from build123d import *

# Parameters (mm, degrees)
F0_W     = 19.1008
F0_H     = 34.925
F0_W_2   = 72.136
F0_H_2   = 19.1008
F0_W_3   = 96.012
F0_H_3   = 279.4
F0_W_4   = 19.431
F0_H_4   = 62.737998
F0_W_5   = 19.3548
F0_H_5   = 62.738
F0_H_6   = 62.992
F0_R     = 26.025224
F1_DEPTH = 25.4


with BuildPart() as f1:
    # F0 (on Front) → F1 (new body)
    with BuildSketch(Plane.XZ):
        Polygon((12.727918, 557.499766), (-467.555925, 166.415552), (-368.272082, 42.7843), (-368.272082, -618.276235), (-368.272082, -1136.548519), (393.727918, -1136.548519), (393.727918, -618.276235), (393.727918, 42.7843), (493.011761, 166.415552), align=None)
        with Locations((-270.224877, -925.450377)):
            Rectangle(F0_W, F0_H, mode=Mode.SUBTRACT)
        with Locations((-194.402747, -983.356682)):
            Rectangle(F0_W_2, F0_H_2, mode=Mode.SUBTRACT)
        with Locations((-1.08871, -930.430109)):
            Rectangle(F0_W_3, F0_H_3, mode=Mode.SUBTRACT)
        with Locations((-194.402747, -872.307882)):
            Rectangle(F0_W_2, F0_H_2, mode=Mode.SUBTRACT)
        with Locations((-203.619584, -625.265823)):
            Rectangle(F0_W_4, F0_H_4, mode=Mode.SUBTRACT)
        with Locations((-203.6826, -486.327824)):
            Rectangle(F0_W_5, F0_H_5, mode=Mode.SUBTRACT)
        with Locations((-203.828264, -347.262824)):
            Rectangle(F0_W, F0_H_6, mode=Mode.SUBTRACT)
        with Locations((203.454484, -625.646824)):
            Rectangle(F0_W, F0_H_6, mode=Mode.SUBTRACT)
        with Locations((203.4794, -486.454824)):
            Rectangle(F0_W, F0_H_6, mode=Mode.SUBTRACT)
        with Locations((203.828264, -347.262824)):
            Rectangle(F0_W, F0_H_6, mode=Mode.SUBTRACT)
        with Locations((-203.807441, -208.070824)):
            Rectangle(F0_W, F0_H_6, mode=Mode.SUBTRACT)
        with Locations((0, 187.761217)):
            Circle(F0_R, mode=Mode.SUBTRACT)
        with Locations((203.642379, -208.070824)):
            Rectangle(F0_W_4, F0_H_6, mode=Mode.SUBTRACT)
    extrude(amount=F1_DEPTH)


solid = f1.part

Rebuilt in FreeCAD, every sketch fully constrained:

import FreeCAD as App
import Part
import Sketcher

V = App.Vector
Q = App.Units.Quantity

doc = App.newDocument("Part")
params = doc.addObject("Spreadsheet::Sheet", "Params")
for row, (alias, value) in enumerate([
    ("sketch1_width", "30 in"),
    ("sketch1_height", "11 in"),
    ("sketch1_width2", "2.84 in"),
    ("sketch1_width3", "3.78 in"),
    ("sketch1_height2", "2.4699999 in"),
    ("pad1_length", "1 in"),
], start=1):
    params.set(f"A{row}", alias)
    params.set(f"B{row}", "=" + value)
    params.setAlias(f"B{row}", alias)

body = doc.addObject("PartDesign::Body", "Body")

# Sketch on XZ plane
sketch1 = body.newObject("Sketcher::SketchObject", "Sketch")
sketch1.AttachmentSupport = (doc.getObject("XZ_Plane"), [""])
sketch1.MapMode = "FlatFace"
sketch1.addGeometry(Part.LineSegment(V(13, 557, 0), V(-468, 166, 0)), False)
sketch1.addGeometry(Part.LineSegment(V(-468, 166, 0), V(-368, 43, 0)), False)
sketch1.addGeometry(Part.LineSegment(V(-368, 43, 0), V(-368, -1137, 0)), False)
sketch1.addGeometry(Part.LineSegment(V(-368, -1137, 0), V(394, -1137, 0)), False)
sketch1.addGeometry(Part.LineSegment(V(394, -1137, 0), V(394, 43, 0)), False)
sketch1.addGeometry(Part.LineSegment(V(394, 43, 0), V(493, 166, 0)), False)
sketch1.addGeometry(Part.LineSegment(V(493, 166, 0), V(13, 557, 0)), False)
sketch1.addGeometry(Part.LineSegment(V(-261, -943, 0), V(-280, -943, 0)), False)
sketch1.addGeometry(Part.LineSegment(V(-280, -943, 0), V(-280, -908, 0)), False)
sketch1.addGeometry(Part.LineSegment(V(-280, -908, 0), V(-261, -908, 0)), False)
sketch1.addGeometry(Part.LineSegment(V(-261, -908, 0), V(-261, -943, 0)), False)
sketch1.addGeometry(Part.LineSegment(V(-158, -993, 0), V(-230, -993, 0)), False)
sketch1.addGeometry(Part.LineSegment(V(-230, -993, 0), V(-230, -974, 0)), False)
sketch1.addGeometry(Part.LineSegment(V(-230, -974, 0), V(-158, -974, 0)), False)
sketch1.addGeometry(Part.LineSegment(V(-158, -974, 0), V(-158, -993, 0)), False)
sketch1.addGeometry(Part.LineSegment(V(-158, -882, 0), V(-230, -882, 0)), False)
sketch1.addGeometry(Part.LineSegment(V(-230, -882, 0), V(-230, -863, 0)), False)
sketch1.addGeometry(Part.LineSegment(V(-230, -863, 0), V(-158, -863, 0)), False)
sketch1.addGeometry(Part.LineSegment(V(-158, -863, 0), V(-158, -882, 0)), False)
sketch1.addGeometry(Part.LineSegment(V(-194, -657, 0), V(-213, -657, 0)), False)
sketch1.addGeometry(Part.LineSegment(V(-213, -657, 0), V(-213, -594, 0)), False)
sketch1.addGeometry(Part.LineSegment(V(-213, -594, 0), V(-194, -594, 0)), False)
sketch1.addGeometry(Part.LineSegment(V(-194, -594, 0), V(-194, -657, 0)), False)
sketch1.addGeometry(Part.LineSegment(V(-194, -518, 0), V(-213, -518, 0)), False)
sketch1.addGeometry(Part.LineSegment(V(-213, -518, 0), V(-213, -455, 0)), False)
sketch1.addGeometry(Part.LineSegment(V(-213, -455, 0), V(-194, -455, 0)), False)
sketch1.addGeometry(Part.LineSegment(V(-194, -455, 0), V(-194, -518, 0)), False)
sketch1.addGeometry(Part.LineSegment(V(47, -1070, 0), V(-49, -1070, 0)), False)
sketch1.addGeometry(Part.LineSegment(V(-49, -1070, 0), V(-49, -791, 0)), False)
sketch1.addGeometry(Part.LineSegment(V(-49, -791, 0), V(47, -791, 0)), False)
sketch1.addGeometry(Part.LineSegment(V(47, -791, 0), V(47, -1070, 0)), False)
sketch1.addGeometry(Part.LineSegment(V(213, -657, 0), V(194, -657, 0)), False)
sketch1.addGeometry(Part.LineSegment(V(194, -657, 0), V(194, -594, 0)), False)
sketch1.addGeometry(Part.LineSegment(V(194, -594, 0), V(213, -594, 0)), False)
sketch1.addGeometry(Part.LineSegment(V(213, -594, 0), V(213, -657, 0)), False)
sketch1.addGeometry(Part.LineSegment(V(213, -518, 0), V(194, -518, 0)), False)
sketch1.addGeometry(Part.LineSegment(V(194, -518, 0), V(194, -455, 0)), False)
sketch1.addGeometry(Part.LineSegment(V(194, -455, 0), V(213, -455, 0)), False)
sketch1.addGeometry(Part.LineSegment(V(213, -455, 0), V(213, -518, 0)), False)
sketch1.addGeometry(Part.LineSegment(V(-194, -379, 0), V(-213, -379, 0)), False)
sketch1.addGeometry(Part.LineSegment(V(-213, -379, 0), V(-213, -316, 0)), False)
sketch1.addGeometry(Part.LineSegment(V(-213, -316, 0), V(-194, -316, 0)), False)
sketch1.addGeometry(Part.LineSegment(V(-194, -316, 0), V(-194, -379, 0)), False)
sketch1.addGeometry(Part.LineSegment(V(-194, -240, 0), V(-213, -240, 0)), False)
sketch1.addGeometry(Part.LineSegment(V(-213, -240, 0), V(-213, -177, 0)), False)
sketch1.addGeometry(Part.LineSegment(V(-213, -177, 0), V(-194, -177, 0)), False)
sketch1.addGeometry(Part.LineSegment(V(-194, -177, 0), V(-194, -240, 0)), False)
sketch1.addGeometry(Part.LineSegment(V(213, -379, 0), V(194, -379, 0)), False)
sketch1.addGeometry(Part.LineSegment(V(194, -379, 0), V(194, -316, 0)), False)
sketch1.addGeometry(Part.LineSegment(V(194, -316, 0), V(213, -316, 0)), False)
sketch1.addGeometry(Part.LineSegment(V(213, -316, 0), V(213, -379, 0)), False)
sketch1.addGeometry(Part.LineSegment(V(213, -240, 0), V(194, -240, 0)), False)
sketch1.addGeometry(Part.LineSegment(V(194, -240, 0), V(194, -177, 0)), False)
sketch1.addGeometry(Part.LineSegment(V(194, -177, 0), V(213, -177, 0)), False)
sketch1.addGeometry(Part.LineSegment(V(213, -177, 0), V(213, -240, 0)), False)
sketch1.addGeometry(Part.Circle(V(0, 188, 0), V(0, 0, 1), 26), False)
sketch1.addConstraint(Sketcher.Constraint("Coincident", 0, 2, 1, 1))
sketch1.addConstraint(Sketcher.Constraint("Coincident", 1, 2, 2, 1))
sketch1.addConstraint(Sketcher.Constraint("Coincident", 2, 2, 3, 1))
sketch1.addConstraint(Sketcher.Constraint("Coincident", 3, 2, 4, 1))
sketch1.addConstraint(Sketcher.Constraint("Coincident", 4, 2, 5, 1))
sketch1.addConstraint(Sketcher.Constraint("Coincident", 5, 2, 6, 1))
sketch1.addConstraint(Sketcher.Constraint("Coincident", 6, 2, 0, 1))
sketch1.addConstraint(Sketcher.Constraint("Coincident", 7, 2, 8, 1))
sketch1.addConstraint(Sketcher.Constraint("Coincident", 8, 2, 9, 1))
sketch1.addConstraint(Sketcher.Constraint("Coincident", 9, 2, 10, 1))
sketch1.addConstraint(Sketcher.Constraint("Coincident", 10, 2, 7, 1))
sketch1.addConstraint(Sketcher.Constraint("Coincident", 11, 2, 12, 1))
sketch1.addConstraint(Sketcher.Constraint("Coincident", 12, 2, 13, 1))
sketch1.addConstraint(Sketcher.Constraint("Coincident", 13, 2, 14, 1))
sketch1.addConstraint(Sketcher.Constraint("Coincident", 14, 2, 11, 1))
sketch1.addConstraint(Sketcher.Constraint("Coincident", 15, 2, 16, 1))
sketch1.addConstraint(Sketcher.Constraint("Coincident", 16, 2, 17, 1))
sketch1.addConstraint(Sketcher.Constraint("Coincident", 17, 2, 18, 1))
sketch1.addConstraint(Sketcher.Constraint("Coincident", 18, 2, 15, 1))
sketch1.addConstraint(Sketcher.Constraint("Coincident", 19, 2, 20, 1))
sketch1.addConstraint(Sketcher.Constraint("Coincident", 20, 2, 21, 1))
sketch1.addConstraint(Sketcher.Constraint("Coincident", 21, 2, 22, 1))
sketch1.addConstraint(Sketcher.Constraint("Coincident", 22, 2, 19, 1))
sketch1.addConstraint(Sketcher.Constraint("Coincident", 23, 2, 24, 1))
sketch1.addConstraint(Sketcher.Constraint("Coincident", 24, 2, 25, 1))
sketch1.addConstraint(Sketcher.Constraint("Coincident", 25, 2, 26, 1))
sketch1.addConstraint(Sketcher.Constraint("Coincident", 26, 2, 23, 1))
sketch1.addConstraint(Sketcher.Constraint("Coincident", 27, 2, 28, 1))
sketch1.addConstraint(Sketcher.Constraint("Coincident", 28, 2, 29, 1))
sketch1.addConstraint(Sketcher.Constraint("Coincident", 29, 2, 30, 1))
sketch1.addConstraint(Sketcher.Constraint("Coincident", 30, 2, 27, 1))
sketch1.addConstraint(Sketcher.Constraint("Coincident", 31, 2, 32, 1))
sketch1.addConstraint(Sketcher.Constraint("Coincident", 32, 2, 33, 1))
sketch1.addConstraint(Sketcher.Constraint("Coincident", 33, 2, 34, 1))
sketch1.addConstraint(Sketcher.Constraint("Coincident", 34, 2, 31, 1))
sketch1.addConstraint(Sketcher.Constraint("Coincident", 35, 2, 36, 1))
sketch1.addConstraint(Sketcher.Constraint("Coincident", 36, 2, 37, 1))
sketch1.addConstraint(Sketcher.Constraint("Coincident", 37, 2, 38, 1))
sketch1.addConstraint(Sketcher.Constraint("Coincident", 38, 2, 35, 1))
sketch1.addConstraint(Sketcher.Constraint("Coincident", 39, 2, 40, 1))
sketch1.addConstraint(Sketcher.Constraint("Coincident", 40, 2, 41, 1))
sketch1.addConstraint(Sketcher.Constraint("Coincident", 41, 2, 42, 1))
sketch1.addConstraint(Sketcher.Constraint("Coincident", 42, 2, 39, 1))
sketch1.addConstraint(Sketcher.Constraint("Coincident", 43, 2, 44, 1))
sketch1.addConstraint(Sketcher.Constraint("Coincident", 44, 2, 45, 1))
sketch1.addConstraint(Sketcher.Constraint("Coincident", 45, 2, 46, 1))
sketch1.addConstraint(Sketcher.Constraint("Coincident", 46, 2, 43, 1))
sketch1.addConstraint(Sketcher.Constraint("Coincident", 47, 2, 48, 1))
sketch1.addConstraint(Sketcher.Constraint("Coincident", 48, 2, 49, 1))
sketch1.addConstraint(Sketcher.Constraint("Coincident", 49, 2, 50, 1))
sketch1.addConstraint(Sketcher.Constraint("Coincident", 50, 2, 47, 1))
sketch1.addConstraint(Sketcher.Constraint("Coincident", 51, 2, 52, 1))
sketch1.addConstraint(Sketcher.Constraint("Coincident", 52, 2, 53, 1))
sketch1.addConstraint(Sketcher.Constraint("Coincident", 53, 2, 54, 1))
sketch1.addConstraint(Sketcher.Constraint("Coincident", 54, 2, 51, 1))
sketch1.addConstraint(Sketcher.Constraint("Vertical", 2))
sketch1.addConstraint(Sketcher.Constraint("Horizontal", 3))
sketch1.addConstraint(Sketcher.Constraint("Vertical", 4))
sketch1.addConstraint(Sketcher.Constraint("Horizontal", 7))
sketch1.addConstraint(Sketcher.Constraint("Vertical", 8))
sketch1.addConstraint(Sketcher.Constraint("Horizontal", 9))
sketch1.addConstraint(Sketcher.Constraint("Vertical", 10))
sketch1.addConstraint(Sketcher.Constraint("Horizontal", 11))
sketch1.addConstraint(Sketcher.Constraint("Vertical", 12))
sketch1.addConstraint(Sketcher.Constraint("Horizontal", 13))
sketch1.addConstraint(Sketcher.Constraint("Vertical", 14))
sketch1.addConstraint(Sketcher.Constraint("Horizontal", 15))
sketch1.addConstraint(Sketcher.Constraint("Vertical", 16))
sketch1.addConstraint(Sketcher.Constraint("Horizontal", 17))
sketch1.addConstraint(Sketcher.Constraint("Vertical", 18))
sketch1.addConstraint(Sketcher.Constraint("Horizontal", 19))
sketch1.addConstraint(Sketcher.Constraint("Vertical", 20))
sketch1.addConstraint(Sketcher.Constraint("Horizontal", 21))
sketch1.addConstraint(Sketcher.Constraint("Vertical", 22))
sketch1.addConstraint(Sketcher.Constraint("Horizontal", 23))
sketch1.addConstraint(Sketcher.Constraint("Vertical", 24))
sketch1.addConstraint(Sketcher.Constraint("Horizontal", 25))
sketch1.addConstraint(Sketcher.Constraint("Vertical", 26))
sketch1.addConstraint(Sketcher.Constraint("Horizontal", 27))
sketch1.addConstraint(Sketcher.Constraint("Vertical", 28))
sketch1.addConstraint(Sketcher.Constraint("Horizontal", 29))
sketch1.addConstraint(Sketcher.Constraint("Vertical", 30))
sketch1.addConstraint(Sketcher.Constraint("Horizontal", 31))
sketch1.addConstraint(Sketcher.Constraint("Vertical", 32))
sketch1.addConstraint(Sketcher.Constraint("Horizontal", 33))
sketch1.addConstraint(Sketcher.Constraint("Vertical", 34))
sketch1.addConstraint(Sketcher.Constraint("Horizontal", 35))
sketch1.addConstraint(Sketcher.Constraint("Vertical", 36))
sketch1.addConstraint(Sketcher.Constraint("Horizontal", 37))
sketch1.addConstraint(Sketcher.Constraint("Vertical", 38))
sketch1.addConstraint(Sketcher.Constraint("Horizontal", 39))
sketch1.addConstraint(Sketcher.Constraint("Vertical", 40))
sketch1.addConstraint(Sketcher.Constraint("Horizontal", 41))
sketch1.addConstraint(Sketcher.Constraint("Vertical", 42))
sketch1.addConstraint(Sketcher.Constraint("Horizontal", 43))
sketch1.addConstraint(Sketcher.Constraint("Vertical", 44))
sketch1.addConstraint(Sketcher.Constraint("Horizontal", 45))
sketch1.addConstraint(Sketcher.Constraint("Vertical", 46))
sketch1.addConstraint(Sketcher.Constraint("Horizontal", 47))
sketch1.addConstraint(Sketcher.Constraint("Vertical", 48))
sketch1.addConstraint(Sketcher.Constraint("Horizontal", 49))
sketch1.addConstraint(Sketcher.Constraint("Vertical", 50))
sketch1.addConstraint(Sketcher.Constraint("Horizontal", 51))
sketch1.addConstraint(Sketcher.Constraint("Vertical", 52))
sketch1.addConstraint(Sketcher.Constraint("Horizontal", 53))
sketch1.addConstraint(Sketcher.Constraint("Vertical", 54))
sketch1.addConstraint(Sketcher.Constraint("Symmetric", 42, 2, 47, 2, -2))
sketch1.addConstraint(Sketcher.Constraint("Symmetric", 40, 2, 49, 2, -2))
sketch1.addConstraint(Sketcher.Constraint("PointOnObject", 55, 3, -2))
sketch1.addConstraint(Sketcher.Constraint("Horizontal", 1, 2, 4, 2))
sketch1.addConstraint(Sketcher.Constraint("Horizontal", 0, 2, 5, 2))
sketch1.addConstraint(Sketcher.Constraint("Horizontal", 25, 2, 36, 2))
sketch1.addConstraint(Sketcher.Constraint("Horizontal", 46, 2, 51, 2))
sketch1.addConstraint(Sketcher.Constraint("Horizontal", 45, 2, 52, 2))
sketch1.addConstraint(Sketcher.Constraint("Vertical", 12, 2, 15, 2))
sketch1.addConstraint(Sketcher.Constraint("Vertical", 14, 2, 17, 2))
sketch1.addConstraint(Sketcher.Constraint("Equal", 9, 31))
sketch1.addConstraint(Sketcher.Constraint("Equal", 33, 35))
sketch1.addConstraint(Sketcher.Constraint("Equal", 37, 39))
sketch1.addConstraint(Sketcher.Constraint("Equal", 41, 43))
sketch1.addConstraint(Sketcher.Constraint("Equal", 21, 51))
sketch1.addConstraint(Sketcher.Constraint("Equal", 49, 12))
sketch1.addConstraint(Sketcher.Constraint("Equal", 14, 16))
sketch1.addConstraint(Sketcher.Constraint("Equal", 34, 36))
sketch1.addConstraint(Sketcher.Constraint("Equal", 38, 40))
sketch1.addConstraint(Sketcher.Constraint("Equal", 42, 44))
sketch1.addConstraint(Sketcher.Constraint("Equal", 1, 5))
sketch1.addConstraint(Sketcher.Constraint("Equal", 0, 6))
sketch1.addConstraint(Sketcher.Constraint("DistanceX", 3, 1, 3, 2, Q("30 in")))
sketch1.addConstraint(Sketcher.Constraint("DistanceY", 28, 1, 28, 2, Q("11 in")))
sketch1.addConstraint(Sketcher.Constraint("DistanceY", 20, 2, 23, 2, Q("3 in")))
sketch1.addConstraint(Sketcher.Constraint("DistanceY", 32, 2, 35, 2, Q("3 in")))
sketch1.addConstraint(Sketcher.Constraint("DistanceY", 24, 2, 39, 2, Q("3 in")))
sketch1.addConstraint(Sketcher.Constraint("DistanceY", 40, 2, 43, 2, Q("3 in")))
sketch1.addConstraint(Sketcher.Constraint("DistanceX", 11, 2, 11, 1, Q("2.84 in")))
sketch1.addConstraint(Sketcher.Constraint("DistanceX", 27, 2, 27, 1, Q("3.78 in")))
sketch1.addConstraint(Sketcher.Constraint("DistanceY", 20, 1, 20, 2, Q("2.4699999 in")))
sketch1.addConstraint(Sketcher.Constraint("DistanceY", 24, 1, 24, 2, Q("2.47 in")))
sketch1.addConstraint(Sketcher.Constraint("DistanceY", 32, 1, 32, 2, Q("2.48 in")))
sketch1.addConstraint(Sketcher.Constraint("DistanceX", 23, 2, -1, 1, Q("8.4 in")))
sketch1.addConstraint(Sketcher.Constraint("DistanceX", 7, 2, 7, 1, Q("0.752 in")))
sketch1.addConstraint(Sketcher.Constraint("DistanceX", 19, 2, 19, 1, Q("0.765 in")))
sketch1.addConstraint(Sketcher.Constraint("DistanceX", 23, 2, 23, 1, Q("0.762 in")))
sketch1.addConstraint(Sketcher.Constraint("DistanceY", 8, 1, 8, 2, Q("1.375 in")))
sketch1.addConstraint(Sketcher.Constraint("DistanceY", 12, 2, 15, 2, Q("3.62 in")))
sketch1.addConstraint(Sketcher.Constraint("Diameter", 55, Q("52.050448 mm")))
sketch1.addConstraint(Sketcher.Constraint("DistanceX", -1, 1, 35, 2, Q("7.635 in")))
sketch1.addConstraint(Sketcher.Constraint("DistanceY", 2, 2, 2, 1, Q("1179.332819 mm")))
sketch1.addConstraint(Sketcher.Constraint("DistanceY", -1, 1, 1, 2, Q("42.7843 mm")))
sketch1.addConstraint(Sketcher.Constraint("Distance", 0, Q("619.37019 mm")))
sketch1.addConstraint(Sketcher.Constraint("Distance", 1, Q("158.56219 mm")))
sketch1.addConstraint(Sketcher.Constraint("DistanceY", -1, 1, 0, 2, Q("166.415552 mm")))
sketch1.addConstraint(Sketcher.Constraint("DistanceX", 1, 2, -1, 1, Q("368.272082 mm")))
sketch1.addConstraint(Sketcher.Constraint("DistanceY", 11, 2, -1, 1, Q("992.907082 mm")))
sketch1.addConstraint(Sketcher.Constraint("DistanceY", 19, 2, -1, 1, Q("656.634822 mm")))
sketch1.addConstraint(Sketcher.Constraint("DistanceX", 27, 2, -1, 1, Q("49.09471 mm")))
sketch1.addConstraint(Sketcher.Constraint("DistanceY", 27, 2, -1, 1, Q("1070.130109 mm")))
sketch1.addConstraint(Sketcher.Constraint("DistanceX", 43, 2, -1, 1, Q("213.357841 mm")))
sketch1.addConstraint(Sketcher.Constraint("DistanceX", -1, 1, 51, 2, Q("193.926879 mm")))
sketch1.addConstraint(Sketcher.Constraint("DistanceY", 55, 3, 6, 2, Q("369.738549 mm")))
sketch1.addConstraint(Sketcher.Constraint("DistanceY", 2, 2, 7, 2, Q("193.635642 mm")))
sketch1.addConstraint(Sketcher.Constraint("DistanceX", 10, 2, 11, 2, Q("30.20373 mm")))
sketch1.addConstraint(Sketcher.Constraint("DistanceX", 22, 2, 31, 2, Q("387.808168 mm")))
sketch1.addConstraint(Sketcher.Constraint("DistanceX", 39, 2, 20, 2, Q("0.04358 mm")))
sketch1.addConstraint(Sketcher.Constraint("DistanceX", 32, 2, 47, 2, Q("0.37378 mm")))
sketch1.addConstraint(Sketcher.Constraint("DistanceX", 7, 2, -1, 1, Q("279.775277 mm")))
sketch1.setExpression("Constraints[128]", "Params.sketch1_width")
sketch1.setExpression("Constraints[129]", "Params.sketch1_height")
sketch1.setExpression("Constraints[134]", "Params.sketch1_width2")
sketch1.setExpression("Constraints[135]", "Params.sketch1_width3")
sketch1.setExpression("Constraints[136]", "Params.sketch1_height2")
pad1 = body.newObject("PartDesign::Pad", "Pad")
pad1.Profile = sketch1
pad1.setExpression("Length", "Params.pad1_length")

doc.recompute()
